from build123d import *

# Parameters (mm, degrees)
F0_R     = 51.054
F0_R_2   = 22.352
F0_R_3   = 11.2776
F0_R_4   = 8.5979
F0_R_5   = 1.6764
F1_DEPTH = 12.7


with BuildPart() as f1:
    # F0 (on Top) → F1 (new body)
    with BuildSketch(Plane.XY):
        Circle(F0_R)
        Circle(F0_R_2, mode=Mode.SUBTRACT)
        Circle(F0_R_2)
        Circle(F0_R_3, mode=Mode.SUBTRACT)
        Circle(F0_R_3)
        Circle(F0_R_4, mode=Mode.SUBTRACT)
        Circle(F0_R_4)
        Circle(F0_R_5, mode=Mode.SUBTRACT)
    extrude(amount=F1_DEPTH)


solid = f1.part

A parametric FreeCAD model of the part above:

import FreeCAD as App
import Part
import Sketcher
from FreeCAD import Vector
Q = App.Units.Quantity

doc = App.newDocument("Part")
body = doc.addObject("PartDesign::Body", "Body")

# Sketch on XY plane
sketch1 = body.newObject("Sketcher::SketchObject", "Sketch")
sketch1.AttachmentSupport = (doc.getObject("XY_Plane"), [""])
sketch1.MapMode = "FlatFace"
sketch1.addGeometry(Part.Circle(Vector(0, 0, 0), Vector(0, 0, 1), 51.1), False)
sketch1.addGeometry(Part.Circle(Vector(0, 0, 0), Vector(0, 0, 1), 1.7), False)
sketch1.addConstraint(Sketcher.Constraint("Coincident", 0, 3, -1, 1))
sketch1.addConstraint(Sketcher.Constraint("Coincident", 1, 3, -1, 1))
sketch1.addConstraint(Sketcher.Constraint("Diameter", 0, Q("4.02 in")))
sketch1.addConstraint(Sketcher.Constraint("Diameter", 1, Q("0.132 in")))
pad1 = body.newObject("PartDesign::Pad", "Pad")
pad1.Profile = sketch1
pad1.Length = Q("0.5 in")

doc.recompute()
